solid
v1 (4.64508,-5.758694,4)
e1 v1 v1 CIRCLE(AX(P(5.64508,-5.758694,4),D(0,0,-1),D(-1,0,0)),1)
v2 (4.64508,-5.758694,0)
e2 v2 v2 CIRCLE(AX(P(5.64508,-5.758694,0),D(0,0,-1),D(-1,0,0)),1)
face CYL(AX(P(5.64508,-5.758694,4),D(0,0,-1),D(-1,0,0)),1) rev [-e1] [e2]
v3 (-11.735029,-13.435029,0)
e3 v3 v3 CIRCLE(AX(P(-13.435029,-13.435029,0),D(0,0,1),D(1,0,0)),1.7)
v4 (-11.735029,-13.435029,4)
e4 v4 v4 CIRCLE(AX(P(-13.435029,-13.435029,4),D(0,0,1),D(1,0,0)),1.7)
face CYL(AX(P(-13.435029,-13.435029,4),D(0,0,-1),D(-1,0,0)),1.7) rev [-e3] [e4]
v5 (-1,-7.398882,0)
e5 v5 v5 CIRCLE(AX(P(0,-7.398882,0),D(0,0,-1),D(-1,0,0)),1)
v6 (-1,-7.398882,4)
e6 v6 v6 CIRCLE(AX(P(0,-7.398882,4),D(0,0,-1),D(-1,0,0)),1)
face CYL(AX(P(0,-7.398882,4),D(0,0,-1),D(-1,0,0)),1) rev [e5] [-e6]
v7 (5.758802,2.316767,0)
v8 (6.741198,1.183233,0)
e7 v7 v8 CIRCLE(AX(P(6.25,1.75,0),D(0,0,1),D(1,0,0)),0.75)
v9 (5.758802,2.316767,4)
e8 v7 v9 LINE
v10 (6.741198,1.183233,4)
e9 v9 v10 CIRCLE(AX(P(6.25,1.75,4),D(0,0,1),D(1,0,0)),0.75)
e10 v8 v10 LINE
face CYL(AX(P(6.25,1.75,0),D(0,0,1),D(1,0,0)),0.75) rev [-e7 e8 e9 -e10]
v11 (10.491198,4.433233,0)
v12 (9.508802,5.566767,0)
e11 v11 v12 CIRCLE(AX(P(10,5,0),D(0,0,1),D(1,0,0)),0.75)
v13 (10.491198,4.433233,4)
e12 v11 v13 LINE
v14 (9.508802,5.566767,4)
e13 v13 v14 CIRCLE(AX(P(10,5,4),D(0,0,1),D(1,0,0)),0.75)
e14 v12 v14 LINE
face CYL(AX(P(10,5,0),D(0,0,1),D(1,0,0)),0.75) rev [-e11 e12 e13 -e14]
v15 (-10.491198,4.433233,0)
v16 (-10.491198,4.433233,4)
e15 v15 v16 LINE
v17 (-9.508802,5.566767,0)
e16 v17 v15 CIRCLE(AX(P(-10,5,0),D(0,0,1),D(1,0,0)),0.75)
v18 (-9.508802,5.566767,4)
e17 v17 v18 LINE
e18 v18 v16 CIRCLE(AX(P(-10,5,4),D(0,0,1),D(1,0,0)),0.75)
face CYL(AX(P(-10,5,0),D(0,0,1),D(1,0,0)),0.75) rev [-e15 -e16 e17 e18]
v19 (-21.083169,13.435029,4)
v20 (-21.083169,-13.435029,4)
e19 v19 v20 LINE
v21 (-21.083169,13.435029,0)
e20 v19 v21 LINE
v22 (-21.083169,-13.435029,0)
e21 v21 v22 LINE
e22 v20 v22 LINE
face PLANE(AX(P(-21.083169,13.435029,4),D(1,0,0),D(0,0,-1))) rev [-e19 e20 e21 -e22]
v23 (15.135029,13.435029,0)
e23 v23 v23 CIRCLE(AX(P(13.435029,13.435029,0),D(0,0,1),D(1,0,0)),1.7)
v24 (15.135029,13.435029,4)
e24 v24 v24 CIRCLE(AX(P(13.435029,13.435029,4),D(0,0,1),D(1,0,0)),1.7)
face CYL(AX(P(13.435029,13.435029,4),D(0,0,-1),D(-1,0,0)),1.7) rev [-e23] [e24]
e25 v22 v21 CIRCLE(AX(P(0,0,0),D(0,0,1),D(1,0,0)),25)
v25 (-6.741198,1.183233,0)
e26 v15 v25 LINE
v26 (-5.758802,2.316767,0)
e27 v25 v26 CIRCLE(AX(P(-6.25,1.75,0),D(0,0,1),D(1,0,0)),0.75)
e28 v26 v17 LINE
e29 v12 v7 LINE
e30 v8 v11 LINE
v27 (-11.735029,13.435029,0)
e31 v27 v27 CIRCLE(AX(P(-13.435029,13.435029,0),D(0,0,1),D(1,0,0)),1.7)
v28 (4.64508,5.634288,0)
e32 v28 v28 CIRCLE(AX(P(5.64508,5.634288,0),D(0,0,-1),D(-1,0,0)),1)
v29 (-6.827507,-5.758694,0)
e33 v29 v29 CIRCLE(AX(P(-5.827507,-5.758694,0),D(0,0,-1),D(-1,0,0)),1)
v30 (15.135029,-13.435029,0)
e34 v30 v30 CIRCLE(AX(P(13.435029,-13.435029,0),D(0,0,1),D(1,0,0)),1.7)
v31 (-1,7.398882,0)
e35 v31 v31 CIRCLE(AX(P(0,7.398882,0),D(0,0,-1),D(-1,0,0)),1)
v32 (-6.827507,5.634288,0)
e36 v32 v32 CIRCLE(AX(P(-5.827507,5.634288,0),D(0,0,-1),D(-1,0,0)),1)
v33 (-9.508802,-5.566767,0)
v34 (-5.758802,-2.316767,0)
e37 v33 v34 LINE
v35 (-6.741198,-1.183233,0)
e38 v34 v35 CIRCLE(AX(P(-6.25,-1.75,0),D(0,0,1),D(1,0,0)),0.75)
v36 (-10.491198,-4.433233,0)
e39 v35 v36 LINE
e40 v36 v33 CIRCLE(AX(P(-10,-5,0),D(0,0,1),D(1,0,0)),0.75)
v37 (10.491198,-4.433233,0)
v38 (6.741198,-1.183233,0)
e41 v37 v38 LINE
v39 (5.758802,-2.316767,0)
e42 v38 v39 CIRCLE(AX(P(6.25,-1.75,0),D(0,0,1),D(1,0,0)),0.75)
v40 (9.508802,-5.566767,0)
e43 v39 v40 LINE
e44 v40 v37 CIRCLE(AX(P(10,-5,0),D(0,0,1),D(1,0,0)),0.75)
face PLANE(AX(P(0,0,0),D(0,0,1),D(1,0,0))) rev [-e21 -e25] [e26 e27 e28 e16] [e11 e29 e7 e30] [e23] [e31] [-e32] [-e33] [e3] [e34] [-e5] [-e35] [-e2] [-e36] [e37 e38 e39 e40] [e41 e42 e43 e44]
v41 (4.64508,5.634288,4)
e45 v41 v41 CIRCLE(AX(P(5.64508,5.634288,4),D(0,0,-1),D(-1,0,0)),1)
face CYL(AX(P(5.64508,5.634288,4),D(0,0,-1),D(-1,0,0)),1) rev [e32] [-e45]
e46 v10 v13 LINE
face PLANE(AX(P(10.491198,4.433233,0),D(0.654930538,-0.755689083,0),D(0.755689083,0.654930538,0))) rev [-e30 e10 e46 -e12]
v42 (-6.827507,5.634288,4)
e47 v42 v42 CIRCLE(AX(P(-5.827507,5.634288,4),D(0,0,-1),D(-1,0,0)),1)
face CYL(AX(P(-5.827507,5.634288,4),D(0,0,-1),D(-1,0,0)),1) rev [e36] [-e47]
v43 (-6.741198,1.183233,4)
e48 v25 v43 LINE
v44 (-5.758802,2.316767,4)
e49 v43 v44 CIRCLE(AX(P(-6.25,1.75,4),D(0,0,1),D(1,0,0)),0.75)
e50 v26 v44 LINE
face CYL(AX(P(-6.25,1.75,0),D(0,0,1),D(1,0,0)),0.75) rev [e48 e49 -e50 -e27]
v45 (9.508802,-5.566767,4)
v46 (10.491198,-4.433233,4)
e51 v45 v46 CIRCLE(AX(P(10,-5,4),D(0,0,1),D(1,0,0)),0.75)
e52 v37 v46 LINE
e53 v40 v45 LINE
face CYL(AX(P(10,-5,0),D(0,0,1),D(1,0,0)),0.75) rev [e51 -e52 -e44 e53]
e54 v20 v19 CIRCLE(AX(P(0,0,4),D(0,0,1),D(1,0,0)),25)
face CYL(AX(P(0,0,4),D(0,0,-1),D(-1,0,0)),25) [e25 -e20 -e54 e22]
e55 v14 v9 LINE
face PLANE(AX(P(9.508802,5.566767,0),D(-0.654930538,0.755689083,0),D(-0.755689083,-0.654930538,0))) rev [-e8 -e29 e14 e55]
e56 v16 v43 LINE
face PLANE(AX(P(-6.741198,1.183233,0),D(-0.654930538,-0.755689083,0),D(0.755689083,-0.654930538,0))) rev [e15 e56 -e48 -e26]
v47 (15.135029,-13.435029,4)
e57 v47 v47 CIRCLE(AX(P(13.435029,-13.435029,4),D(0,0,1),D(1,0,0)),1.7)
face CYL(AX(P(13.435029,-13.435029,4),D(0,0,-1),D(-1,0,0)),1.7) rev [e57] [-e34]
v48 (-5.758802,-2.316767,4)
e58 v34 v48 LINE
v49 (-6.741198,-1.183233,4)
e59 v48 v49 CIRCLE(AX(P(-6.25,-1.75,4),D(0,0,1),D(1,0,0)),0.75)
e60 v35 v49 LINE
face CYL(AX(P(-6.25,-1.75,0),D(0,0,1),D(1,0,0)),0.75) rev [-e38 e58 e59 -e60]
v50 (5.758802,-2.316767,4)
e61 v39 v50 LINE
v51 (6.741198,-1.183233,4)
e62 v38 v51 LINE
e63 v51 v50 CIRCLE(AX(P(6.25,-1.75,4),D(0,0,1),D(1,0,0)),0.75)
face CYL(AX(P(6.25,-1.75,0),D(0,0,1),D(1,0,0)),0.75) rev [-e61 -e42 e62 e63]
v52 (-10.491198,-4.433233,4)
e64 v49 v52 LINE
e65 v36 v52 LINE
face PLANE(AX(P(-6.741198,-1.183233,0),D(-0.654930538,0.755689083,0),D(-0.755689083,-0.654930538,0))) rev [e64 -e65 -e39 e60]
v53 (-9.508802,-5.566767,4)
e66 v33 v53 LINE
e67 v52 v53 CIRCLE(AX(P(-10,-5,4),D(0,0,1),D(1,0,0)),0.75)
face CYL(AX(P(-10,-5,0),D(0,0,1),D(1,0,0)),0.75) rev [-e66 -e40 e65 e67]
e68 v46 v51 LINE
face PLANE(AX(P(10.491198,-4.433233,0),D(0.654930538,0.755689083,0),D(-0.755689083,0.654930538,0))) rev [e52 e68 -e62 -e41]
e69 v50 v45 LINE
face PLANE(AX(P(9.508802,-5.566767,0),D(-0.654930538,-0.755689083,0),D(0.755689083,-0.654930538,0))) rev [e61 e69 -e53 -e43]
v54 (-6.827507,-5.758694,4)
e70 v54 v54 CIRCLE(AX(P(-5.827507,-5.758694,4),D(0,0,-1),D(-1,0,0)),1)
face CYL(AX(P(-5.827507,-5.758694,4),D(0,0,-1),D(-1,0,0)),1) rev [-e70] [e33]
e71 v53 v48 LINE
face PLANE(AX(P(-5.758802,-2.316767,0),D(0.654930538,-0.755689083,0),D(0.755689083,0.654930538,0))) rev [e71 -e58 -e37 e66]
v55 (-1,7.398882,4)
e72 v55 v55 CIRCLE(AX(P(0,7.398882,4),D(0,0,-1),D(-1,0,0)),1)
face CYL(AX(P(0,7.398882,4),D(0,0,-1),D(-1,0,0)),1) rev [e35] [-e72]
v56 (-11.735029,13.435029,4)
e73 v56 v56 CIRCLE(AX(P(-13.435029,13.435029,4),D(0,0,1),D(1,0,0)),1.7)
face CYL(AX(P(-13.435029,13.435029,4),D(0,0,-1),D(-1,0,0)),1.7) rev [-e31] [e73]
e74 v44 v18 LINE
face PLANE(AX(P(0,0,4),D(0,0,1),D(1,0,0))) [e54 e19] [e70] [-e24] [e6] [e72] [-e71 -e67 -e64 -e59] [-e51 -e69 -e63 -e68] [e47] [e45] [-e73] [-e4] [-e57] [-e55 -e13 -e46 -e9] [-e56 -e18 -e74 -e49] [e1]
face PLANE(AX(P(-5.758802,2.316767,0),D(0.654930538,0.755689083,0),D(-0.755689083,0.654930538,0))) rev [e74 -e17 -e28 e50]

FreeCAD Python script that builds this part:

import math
import FreeCAD as App
import Part
import Sketcher

V = App.Vector

doc = App.newDocument("Part")
body = doc.addObject("PartDesign::Body", "Body")

sketch1 = body.newObject("Sketcher::SketchObject", "Sketch")
sketch1.AttachmentSupport = (doc.getObject("XY_Plane"), [""])
sketch1.MapMode = "FlatFace"
sketch1.addGeometry(Part.Circle(V(0, 0, 0), V(0, 0, 1), 25), False)
sketch1.addGeometry(Part.Circle(V(-13.4, -13.4, 0), V(0, 0, 1), 1.7), False)
sketch1.addGeometry(Part.Circle(V(13.4, -13.4, 0), V(0, 0, 1), 1.7), False)
sketch1.addGeometry(Part.Circle(V(-13.4, 13.4, 0), V(0, 0, 1), 1.7), False)
sketch1.addGeometry(Part.Circle(V(13.4, 13.4, 0), V(0, 0, 1), 1.7), False)
sketch1.addConstraint(Sketcher.Constraint("Coincident", 0, 3, -1, 1))
sketch1.addConstraint(Sketcher.Constraint("Equal", 1, 2))
sketch1.addConstraint(Sketcher.Constraint("Equal", 2, 3))
sketch1.addConstraint(Sketcher.Constraint("Equal", 3, 4))
sketch1.addConstraint(Sketcher.Constraint("Symmetric", 2, 3, 3, 3, -1, 1))
sketch1.addConstraint(Sketcher.Constraint("Symmetric", 1, 3, 4, 3, -1, 1))
sketch1.addConstraint(Sketcher.Constraint("Symmetric", 1, 3, 2, 3, -2))
sketch1.addConstraint(Sketcher.Constraint("Diameter", 0, 50.0))
sketch1.addConstraint(Sketcher.Constraint("Diameter", 1, 3.4))
sketch1.addConstraint(Sketcher.Constraint("DistanceX", 1, 3, -1, 1, 13.435029))
sketch1.addConstraint(Sketcher.Constraint("DistanceY", 1, 3, -1, 1, 13.435029))
pad1 = body.newObject("PartDesign::Pad", "Pad")
pad1.Profile = sketch1
pad1.Length = 4

sketch2 = body.newObject("Sketcher::SketchObject", "Sketch001")
sketch2.AttachmentSupport = (doc.getObject("XY_Plane"), [""])
sketch2.MapMode = "FlatFace"
sketch2.addGeometry(Part.Circle(V(0, 7.4, 0), V(0, 0, 1), 1), False)
sketch2.addGeometry(Part.Circle(V(-5.8, 5.6, 0), V(0, 0, 1), 1), False)
sketch2.addGeometry(Part.Circle(V(-5.8, -5.8, 0), V(0, 0, 1), 1), False)
sketch2.addGeometry(Part.Circle(V(0, -7.4, 0), V(0, 0, 1), 1), False)
sketch2.addGeometry(Part.Circle(V(5.6, -5.8, 0), V(0, 0, 1), 1), False)
sketch2.addGeometry(Part.Circle(V(5.6, 5.6, 0), V(0, 0, 1), 1), False)
sketch2.addConstraint(Sketcher.Constraint("Equal", 0, 1))
sketch2.addConstraint(Sketcher.Constraint("Equal", 1, 2))
sketch2.addConstraint(Sketcher.Constraint("Equal", 2, 3))
sketch2.addConstraint(Sketcher.Constraint("Equal", 3, 4))
sketch2.addConstraint(Sketcher.Constraint("Equal", 4, 5))
sketch2.addConstraint(Sketcher.Constraint("Symmetric", 0, 3, 3, 3, -1, 1))
sketch2.addConstraint(Sketcher.Constraint("PointOnObject", 0, 3, -2))
sketch2.addConstraint(Sketcher.Constraint("Horizontal", 2, 3, 4, 3))
sketch2.addConstraint(Sketcher.Constraint("Horizontal", 1, 3, 5, 3))
sketch2.addConstraint(Sketcher.Constraint("Vertical", 1, 3, 2, 3))
sketch2.addConstraint(Sketcher.Constraint("Vertical", 4, 3, 5, 3))
sketch2.addConstraint(Sketcher.Constraint("Diameter", 0, 2.0))
sketch2.addConstraint(Sketcher.Constraint("DistanceX", -1, 1, 4, 3, 5.64508))
sketch2.addConstraint(Sketcher.Constraint("DistanceY", 2, 3, 1, 3, 11.392982))
sketch2.addConstraint(Sketcher.Constraint("DistanceY", 3, 3, 2, 3, 1.640188))
sketch2.addConstraint(Sketcher.Constraint("DistanceY", -1, 1, 0, 3, 7.398882))
sketch2.addConstraint(Sketcher.Constraint("DistanceX", 1, 3, -1, 1, 5.827507))
pocket1 = body.newObject("PartDesign::Pocket", "Pocket")
pocket1.Profile = sketch2
pocket1.Type = "ThroughAll"
pocket1.Reversed = True

sketch3 = body.newObject("Sketcher::SketchObject", "Sketch002")
sketch3.AttachmentSupport = (doc.getObject("XY_Plane"), [""])
sketch3.MapMode = "FlatFace"
sketch3.addGeometry(Part.LineSegment(V(-21.1, 13.4, 0), V(-21.1, -15.5, 0)), False)
sketch3.addGeometry(Part.LineSegment(V(-21.1, -15.5, 0), V(-26, -15.5, 0)), False)
sketch3.addGeometry(Part.LineSegment(V(-26, -15.5, 0), V(-26, 13.4, 0)), False)
sketch3.addGeometry(Part.LineSegment(V(-26, 13.4, 0), V(-21.1, 13.4, 0)), False)
sketch3.addConstraint(Sketcher.Constraint("Coincident", 0, 2, 1, 1))
sketch3.addConstraint(Sketcher.Constraint("Coincident", 1, 2, 2, 1))
sketch3.addConstraint(Sketcher.Constraint("Coincident", 2, 2, 3, 1))
sketch3.addConstraint(Sketcher.Constraint("Coincident", 3, 2, 0, 1))
sketch3.addConstraint(Sketcher.Constraint("Vertical", 0))
sketch3.addConstraint(Sketcher.Constraint("Horizontal", 1))
sketch3.addConstraint(Sketcher.Constraint("Vertical", 2))
sketch3.addConstraint(Sketcher.Constraint("Horizontal", 3))
sketch3.addConstraint(Sketcher.Constraint("DistanceX", 1, 2, 1, 1, 4.903661))
sketch3.addConstraint(Sketcher.Constraint("DistanceY", 0, 2, 0, 1, 28.89412))
sketch3.addConstraint(Sketcher.Constraint("DistanceX", 0, 2, -1, 1, 21.083169))
sketch3.addConstraint(Sketcher.Constraint("DistanceY", 0, 2, -1, 1, 15.459091))
pocket2 = body.newObject("PartDesign::Pocket", "Pocket001")
pocket2.Profile = sketch3
pocket2.Type = "ThroughAll"
pocket2.Reversed = True

sketch4 = body.newObject("Sketcher::SketchObject", "Sketch003")
sketch4.AttachmentSupport = (doc.getObject("XY_Plane"), [""])
sketch4.MapMode = "FlatFace"
sketch4.AttachmentOffset = App.Placement(V(0, 0, 4), App.Rotation())
sketch4.addGeometry(Part.LineSegment(V(-9.5, -5.6, 0), V(-5.8, -2.3, 0)), False)
sketch4.addGeometry(Part.ArcOfCircle(Part.Circle(V(-6.2, -1.8, 0), V(0, 0, 1), 0.8), math.radians(-49), math.radians(131)), False)
sketch4.addGeometry(Part.LineSegment(V(-6.7, -1.2, 0), V(-10.5, -4.4, 0)), False)
sketch4.addGeometry(Part.ArcOfCircle(Part.Circle(V(-10, -5, 0), V(0, 0, 1), 0.8), math.radians(131), math.radians(311)), False)
sketch4.addGeometry(Part.LineSegment(V(-10.5, 4.4, 0), V(-6.7, 1.2, 0)), False)
sketch4.addGeometry(Part.ArcOfCircle(Part.Circle(V(-6.2, 1.8, 0), V(0, 0, 1), 0.8), math.radians(-131), math.radians(49)), False)
sketch4.addGeometry(Part.LineSegment(V(-5.8, 2.3, 0), V(-9.5, 5.6, 0)), False)
sketch4.addGeometry(Part.ArcOfCircle(Part.Circle(V(-10, 5, 0), V(0, 0, 1), 0.8), math.radians(49), math.radians(229)), False)
sketch4.addGeometry(Part.LineSegment(V(5.8, -2.3, 0), V(9.5, -5.6, 0)), False)
sketch4.addGeometry(Part.ArcOfCircle(Part.Circle(V(10, -5, 0), V(0, 0, 1), 0.8), math.radians(-131), math.radians(49)), False)
sketch4.addGeometry(Part.LineSegment(V(10.5, -4.4, 0), V(6.7, -1.2, 0)), False)
sketch4.addGeometry(Part.ArcOfCircle(Part.Circle(V(6.2, -1.8, 0), V(0, 0, 1), 0.8), math.radians(49), math.radians(229)), False)
sketch4.addGeometry(Part.LineSegment(V(6.7, 1.2, 0), V(10.5, 4.4, 0)), False)
sketch4.addGeometry(Part.ArcOfCircle(Part.Circle(V(10, 5, 0), V(0, 0, 1), 0.8), math.radians(-49), math.radians(131)), False)
sketch4.addGeometry(Part.LineSegment(V(9.5, 5.6, 0), V(5.8, 2.3, 0)), False)
sketch4.addGeometry(Part.ArcOfCircle(Part.Circle(V(6.2, 1.8, 0), V(0, 0, 1), 0.8), math.radians(131), math.radians(311)), False)
sketch4.addConstraint(Sketcher.Constraint("Tangent", 0, 2, 1, 1))
sketch4.addConstraint(Sketcher.Constraint("Tangent", 1, 2, 2, 1))
sketch4.addConstraint(Sketcher.Constraint("Tangent", 2, 2, 3, 1))
sketch4.addConstraint(Sketcher.Constraint("Tangent", 3, 2, 0, 1))
sketch4.addConstraint(Sketcher.Constraint("Tangent", 4, 2, 5, 1))
sketch4.addConstraint(Sketcher.Constraint("Tangent", 5, 2, 6, 1))
sketch4.addConstraint(Sketcher.Constraint("Tangent", 6, 2, 7, 1))
sketch4.addConstraint(Sketcher.Constraint("Tangent", 7, 2, 4, 1))
sketch4.addConstraint(Sketcher.Constraint("Tangent", 8, 2, 9, 1))
sketch4.addConstraint(Sketcher.Constraint("Tangent", 9, 2, 10, 1))
sketch4.addConstraint(Sketcher.Constraint("Tangent", 10, 2, 11, 1))
sketch4.addConstraint(Sketcher.Constraint("Tangent", 11, 2, 8, 1))
sketch4.addConstraint(Sketcher.Constraint("Tangent", 12, 2, 13, 1))
sketch4.addConstraint(Sketcher.Constraint("Tangent", 13, 2, 14, 1))
sketch4.addConstraint(Sketcher.Constraint("Tangent", 14, 2, 15, 1))
sketch4.addConstraint(Sketcher.Constraint("Tangent", 15, 2, 12, 1))
sketch4.addConstraint(Sketcher.Constraint("Equal", 1, 3))
sketch4.addConstraint(Sketcher.Constraint("Equal", 3, 5))
sketch4.addConstraint(Sketcher.Constraint("Equal", 5, 7))
sketch4.addConstraint(Sketcher.Constraint("Equal", 7, 9))
sketch4.addConstraint(Sketcher.Constraint("Equal", 9, 11))
sketch4.addConstraint(Sketcher.Constraint("Equal", 11, 13))
sketch4.addConstraint(Sketcher.Constraint("Equal", 13, 15))
sketch4.addConstraint(Sketcher.Constraint("Symmetric", 7, 3, 9, 3, -1, 1))
sketch4.addConstraint(Sketcher.Constraint("Symmetric", 5, 3, 11, 3, -1, 1))
sketch4.addConstraint(Sketcher.Constraint("Symmetric", 3, 3, 13, 3, -1, 1))
sketch4.addConstraint(Sketcher.Constraint("Symmetric", 1, 3, 15, 3, -1, 1))
sketch4.addConstraint(Sketcher.Constraint("Symmetric", 3, 3, 9, 3, -2))
sketch4.addConstraint(Sketcher.Constraint("Symmetric", 1, 3, 11, 3, -2))
sketch4.addConstraint(Sketcher.Constraint("Radius", 1, 0.75))
sketch4.addConstraint(Sketcher.Constraint("DistanceX", 3, 3, -1, 1, 10.0))
sketch4.addConstraint(Sketcher.Constraint("DistanceY", 3, 3, -1, 1, 5.0))
sketch4.addConstraint(Sketcher.Constraint("DistanceY", 1, 3, 5, 3, 3.5))
sketch4.addConstraint(Sketcher.Constraint("DistanceX", 1, 3, 11, 3, 12.5))
pocket3 = body.newObject("PartDesign::Pocket", "Pocket002")
pocket3.Profile = sketch4
pocket3.Type = "ThroughAll"

doc.recompute()
